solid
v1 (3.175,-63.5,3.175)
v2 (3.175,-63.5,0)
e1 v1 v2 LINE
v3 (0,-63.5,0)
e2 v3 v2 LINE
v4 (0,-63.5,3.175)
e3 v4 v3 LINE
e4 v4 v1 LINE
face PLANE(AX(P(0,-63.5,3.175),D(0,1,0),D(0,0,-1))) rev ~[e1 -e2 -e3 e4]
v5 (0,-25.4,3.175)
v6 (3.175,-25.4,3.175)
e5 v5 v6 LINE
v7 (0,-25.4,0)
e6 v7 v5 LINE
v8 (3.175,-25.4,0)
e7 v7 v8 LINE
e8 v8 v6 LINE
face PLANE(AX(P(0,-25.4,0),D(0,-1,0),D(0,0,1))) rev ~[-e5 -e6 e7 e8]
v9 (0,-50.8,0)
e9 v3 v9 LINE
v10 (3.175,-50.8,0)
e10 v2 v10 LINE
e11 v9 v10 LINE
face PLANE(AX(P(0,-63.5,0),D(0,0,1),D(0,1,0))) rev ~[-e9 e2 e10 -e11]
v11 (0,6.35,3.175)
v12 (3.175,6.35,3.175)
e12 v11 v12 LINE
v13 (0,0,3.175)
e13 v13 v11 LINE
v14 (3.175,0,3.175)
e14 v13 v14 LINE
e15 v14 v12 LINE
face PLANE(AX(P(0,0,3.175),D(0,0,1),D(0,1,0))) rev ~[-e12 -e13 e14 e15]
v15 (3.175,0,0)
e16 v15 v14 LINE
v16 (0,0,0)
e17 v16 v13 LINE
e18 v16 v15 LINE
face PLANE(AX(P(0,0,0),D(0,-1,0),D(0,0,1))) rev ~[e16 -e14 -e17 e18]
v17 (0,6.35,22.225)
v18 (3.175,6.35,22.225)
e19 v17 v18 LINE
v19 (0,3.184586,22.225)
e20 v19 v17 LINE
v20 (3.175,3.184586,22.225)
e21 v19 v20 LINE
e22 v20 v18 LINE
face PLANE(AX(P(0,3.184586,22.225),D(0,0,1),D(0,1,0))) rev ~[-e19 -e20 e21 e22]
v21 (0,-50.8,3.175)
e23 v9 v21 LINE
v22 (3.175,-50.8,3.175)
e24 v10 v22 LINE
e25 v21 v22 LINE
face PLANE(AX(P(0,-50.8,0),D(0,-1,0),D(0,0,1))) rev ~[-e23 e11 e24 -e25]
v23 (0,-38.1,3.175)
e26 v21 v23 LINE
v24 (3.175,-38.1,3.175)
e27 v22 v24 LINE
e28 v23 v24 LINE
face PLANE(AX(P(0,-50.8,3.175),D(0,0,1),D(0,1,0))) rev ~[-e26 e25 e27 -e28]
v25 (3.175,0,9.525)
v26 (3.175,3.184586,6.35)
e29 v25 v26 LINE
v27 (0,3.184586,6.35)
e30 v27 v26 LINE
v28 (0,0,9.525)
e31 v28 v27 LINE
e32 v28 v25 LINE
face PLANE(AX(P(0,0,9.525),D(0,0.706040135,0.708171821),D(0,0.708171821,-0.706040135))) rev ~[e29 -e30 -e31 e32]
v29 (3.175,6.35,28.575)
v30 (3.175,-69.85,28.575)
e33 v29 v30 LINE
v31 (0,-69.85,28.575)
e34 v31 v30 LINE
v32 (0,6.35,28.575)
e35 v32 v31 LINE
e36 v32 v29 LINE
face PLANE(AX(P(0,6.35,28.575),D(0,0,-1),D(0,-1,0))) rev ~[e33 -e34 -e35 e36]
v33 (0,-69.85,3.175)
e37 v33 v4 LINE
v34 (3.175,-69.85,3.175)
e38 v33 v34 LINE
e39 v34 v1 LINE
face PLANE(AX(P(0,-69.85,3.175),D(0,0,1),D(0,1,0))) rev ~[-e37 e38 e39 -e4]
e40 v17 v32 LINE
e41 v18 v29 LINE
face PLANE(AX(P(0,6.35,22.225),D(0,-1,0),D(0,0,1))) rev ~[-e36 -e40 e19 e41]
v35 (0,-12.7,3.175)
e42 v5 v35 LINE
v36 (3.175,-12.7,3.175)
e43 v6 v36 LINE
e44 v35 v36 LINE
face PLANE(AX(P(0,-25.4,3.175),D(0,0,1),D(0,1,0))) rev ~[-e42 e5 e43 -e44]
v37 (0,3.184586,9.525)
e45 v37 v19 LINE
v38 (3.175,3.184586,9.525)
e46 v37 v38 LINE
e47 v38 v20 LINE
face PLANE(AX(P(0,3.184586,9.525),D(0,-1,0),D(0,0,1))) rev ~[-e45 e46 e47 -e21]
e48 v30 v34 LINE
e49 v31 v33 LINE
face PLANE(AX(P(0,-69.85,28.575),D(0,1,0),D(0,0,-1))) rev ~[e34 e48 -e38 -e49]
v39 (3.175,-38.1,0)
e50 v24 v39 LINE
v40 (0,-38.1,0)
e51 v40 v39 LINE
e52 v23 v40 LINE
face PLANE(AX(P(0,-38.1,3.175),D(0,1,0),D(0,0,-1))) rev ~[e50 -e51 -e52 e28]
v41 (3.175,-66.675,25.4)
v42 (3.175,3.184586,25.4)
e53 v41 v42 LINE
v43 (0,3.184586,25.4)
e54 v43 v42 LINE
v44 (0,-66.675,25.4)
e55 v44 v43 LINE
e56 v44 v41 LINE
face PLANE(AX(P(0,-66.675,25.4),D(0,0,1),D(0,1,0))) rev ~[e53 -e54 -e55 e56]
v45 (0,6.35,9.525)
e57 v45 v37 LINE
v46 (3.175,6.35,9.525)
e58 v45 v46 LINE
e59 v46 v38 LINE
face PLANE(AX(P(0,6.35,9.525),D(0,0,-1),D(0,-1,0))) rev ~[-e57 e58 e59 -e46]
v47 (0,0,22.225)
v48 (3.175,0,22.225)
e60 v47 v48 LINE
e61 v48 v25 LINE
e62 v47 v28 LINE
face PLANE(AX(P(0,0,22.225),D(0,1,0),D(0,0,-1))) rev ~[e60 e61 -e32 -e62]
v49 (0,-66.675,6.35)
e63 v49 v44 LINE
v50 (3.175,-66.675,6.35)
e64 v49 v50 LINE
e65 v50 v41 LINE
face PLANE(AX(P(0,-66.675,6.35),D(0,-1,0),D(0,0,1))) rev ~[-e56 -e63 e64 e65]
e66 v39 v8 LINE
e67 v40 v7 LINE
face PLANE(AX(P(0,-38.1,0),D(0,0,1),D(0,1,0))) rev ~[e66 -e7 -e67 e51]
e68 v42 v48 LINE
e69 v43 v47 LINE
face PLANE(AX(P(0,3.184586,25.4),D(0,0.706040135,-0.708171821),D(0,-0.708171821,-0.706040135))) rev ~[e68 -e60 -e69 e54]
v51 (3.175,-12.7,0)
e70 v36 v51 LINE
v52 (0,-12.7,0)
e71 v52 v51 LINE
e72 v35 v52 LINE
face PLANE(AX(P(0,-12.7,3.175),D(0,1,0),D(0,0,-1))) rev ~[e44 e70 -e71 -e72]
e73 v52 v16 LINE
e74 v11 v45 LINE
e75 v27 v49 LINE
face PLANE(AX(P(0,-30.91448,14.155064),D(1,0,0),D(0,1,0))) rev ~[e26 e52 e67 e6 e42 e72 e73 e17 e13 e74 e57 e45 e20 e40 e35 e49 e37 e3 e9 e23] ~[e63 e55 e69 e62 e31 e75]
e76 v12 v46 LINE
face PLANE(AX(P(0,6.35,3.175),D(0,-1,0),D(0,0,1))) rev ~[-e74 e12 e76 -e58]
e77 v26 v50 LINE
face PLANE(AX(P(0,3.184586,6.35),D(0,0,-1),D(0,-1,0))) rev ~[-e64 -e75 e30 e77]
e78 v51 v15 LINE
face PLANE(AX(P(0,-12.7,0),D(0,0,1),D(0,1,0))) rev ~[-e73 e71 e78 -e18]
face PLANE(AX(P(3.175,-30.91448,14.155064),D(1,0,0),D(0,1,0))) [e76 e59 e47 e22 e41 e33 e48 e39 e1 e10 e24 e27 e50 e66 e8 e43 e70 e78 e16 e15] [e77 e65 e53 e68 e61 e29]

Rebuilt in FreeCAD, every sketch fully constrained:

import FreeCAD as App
import Part
import Sketcher
Q = App.Units.Quantity

doc = App.newDocument("Part")
body = doc.addObject("PartDesign::Body", "Body")

# Sketch on YZ plane
sketch1 = doc.addObject("Sketcher::SketchObject", "Sketch")
body.addObject(sketch1)
sketch1.AttachmentSupport = (doc.YZ_Plane, [""])
sketch1.MapMode = "FlatFace"
sketch1.addGeometry([
    Part.LineSegment(App.Vector(-12.7, 0, 0), App.Vector(0, 0, 0)),  # 0
    Part.LineSegment(App.Vector(0, 0, 0), App.Vector(0, 3.175, 0)),  # 1
    Part.LineSegment(App.Vector(0, 3.175, 0), App.Vector(6.35, 3.175, 0)),  # 2
    Part.LineSegment(App.Vector(6.35, 3.175, 0), App.Vector(6.35, 9.525, 0)),  # 3
    Part.LineSegment(App.Vector(6.35, 9.525, 0), App.Vector(3.184586, 9.525, 0)),  # 4
    Part.LineSegment(App.Vector(3.184586, 9.525, 0), App.Vector(3.184586, 22.225, 0)),  # 5
    Part.LineSegment(App.Vector(3.184586, 22.225, 0), App.Vector(6.35, 22.225, 0)),  # 6
    Part.LineSegment(App.Vector(6.35, 22.225, 0), App.Vector(6.35, 28.575, 0)),  # 7
    Part.LineSegment(App.Vector(6.35, 28.575, 0), App.Vector(-69.85, 28.575, 0)),  # 8
    Part.LineSegment(App.Vector(-69.85, 28.575, 0), App.Vector(-69.85, 3.175, 0)),  # 9
    Part.LineSegment(App.Vector(-69.85, 3.175, 0), App.Vector(-63.5, 3.175, 0)),  # 10
    Part.LineSegment(App.Vector(-63.5, 3.175, 0), App.Vector(-63.5, 0, 0)),  # 11
    Part.LineSegment(App.Vector(-63.5, 0, 0), App.Vector(-50.8, 0, 0)),  # 12
    Part.LineSegment(App.Vector(-50.8, 0, 0), App.Vector(-50.8, 3.175, 0)),  # 13
    Part.LineSegment(App.Vector(-50.8, 3.175, 0), App.Vector(-38.1, 3.175, 0)),  # 14
    Part.LineSegment(App.Vector(-38.1, 3.175, 0), App.Vector(-38.1, 0, 0)),  # 15
    Part.LineSegment(App.Vector(-38.1, 0, 0), App.Vector(-25.4, 0, 0)),  # 16
    Part.LineSegment(App.Vector(-25.4, 0, 0), App.Vector(-25.4, 3.175, 0)),  # 17
    Part.LineSegment(App.Vector(-25.4, 3.175, 0), App.Vector(-12.7, 3.175, 0)),  # 18
    Part.LineSegment(App.Vector(-12.7, 3.175, 0), App.Vector(-12.7, 0, 0)),  # 19
    Part.LineSegment(App.Vector(3.184586, 6.35, 0), App.Vector(-66.675, 6.35, 0)),  # 20
    Part.LineSegment(App.Vector(-66.675, 6.35, 0), App.Vector(-66.675, 25.4, 0)),  # 21
    Part.LineSegment(App.Vector(-66.675, 25.4, 0), App.Vector(3.184586, 25.4, 0)),  # 22
    Part.LineSegment(App.Vector(3.184586, 25.4, 0), App.Vector(0, 22.225, 0)),  # 23
    Part.LineSegment(App.Vector(0, 22.225, 0), App.Vector(0, 9.525, 0)),  # 24
    Part.LineSegment(App.Vector(0, 9.525, 0), App.Vector(3.184586, 6.35, 0)),  # 25
], False)
sketch1.addConstraint([
    Sketcher.Constraint("Coincident", 0, 2, 1, 1),
    Sketcher.Constraint("Coincident", 1, 2, 2, 1),
    Sketcher.Constraint("Coincident", 2, 2, 3, 1),
    Sketcher.Constraint("Coincident", 3, 2, 4, 1),
    Sketcher.Constraint("Coincident", 4, 2, 5, 1),
    Sketcher.Constraint("Coincident", 5, 2, 6, 1),
    Sketcher.Constraint("Coincident", 6, 2, 7, 1),
    Sketcher.Constraint("Coincident", 7, 2, 8, 1),
    Sketcher.Constraint("Coincident", 8, 2, 9, 1),
    Sketcher.Constraint("Coincident", 9, 2, 10, 1),
    Sketcher.Constraint("Coincident", 10, 2, 11, 1),
    Sketcher.Constraint("Coincident", 11, 2, 12, 1),
    Sketcher.Constraint("Coincident", 12, 2, 13, 1),
    Sketcher.Constraint("Coincident", 13, 2, 14, 1),
    Sketcher.Constraint("Coincident", 14, 2, 15, 1),
    Sketcher.Constraint("Coincident", 15, 2, 16, 1),
    Sketcher.Constraint("Coincident", 16, 2, 17, 1),
    Sketcher.Constraint("Coincident", 17, 2, 18, 1),
    Sketcher.Constraint("Coincident", 18, 2, 19, 1),
    Sketcher.Constraint("Coincident", 19, 2, 0, 1),
    Sketcher.Constraint("Coincident", 20, 2, 21, 1),
    Sketcher.Constraint("Coincident", 21, 2, 22, 1),
    Sketcher.Constraint("Coincident", 22, 2, 23, 1),
    Sketcher.Constraint("Coincident", 23, 2, 24, 1),
    Sketcher.Constraint("Coincident", 24, 2, 25, 1),
    Sketcher.Constraint("Coincident", 25, 2, 20, 1),
    Sketcher.Constraint("Horizontal", 0),
    Sketcher.Constraint("Vertical", 1),
    Sketcher.Constraint("Horizontal", 2),
    Sketcher.Constraint("Vertical", 3),
    Sketcher.Constraint("Horizontal", 4),
    Sketcher.Constraint("Vertical", 5),
    Sketcher.Constraint("Horizontal", 6),
    Sketcher.Constraint("Vertical", 7),
    Sketcher.Constraint("Horizontal", 8),
    Sketcher.Constraint("Vertical", 9),
    Sketcher.Constraint("Horizontal", 10),
    Sketcher.Constraint("Vertical", 11),
    Sketcher.Constraint("Horizontal", 12),
    Sketcher.Constraint("Vertical", 13),
    Sketcher.Constraint("Horizontal", 14),
    Sketcher.Constraint("Vertical", 15),
    Sketcher.Constraint("Horizontal", 16),
    Sketcher.Constraint("Vertical", 17),
    Sketcher.Constraint("Horizontal", 18),
    Sketcher.Constraint("Vertical", 19),
    Sketcher.Constraint("Horizontal", 20),
    Sketcher.Constraint("Vertical", 21),
    Sketcher.Constraint("Horizontal", 22),
    Sketcher.Constraint("Vertical", 24),
    Sketcher.Constraint("Coincident", 0, 2, -1, 1),
    Sketcher.Constraint("PointOnObject", 11, 2, -1),
    Sketcher.Constraint("PointOnObject", 15, 2, -1),
    Sketcher.Constraint("PointOnObject", 23, 2, -2),
    Sketcher.Constraint("Horizontal", 2, 2, 9, 2),
    Sketcher.Constraint("Horizontal", 10, 2, 13, 2),
    Sketcher.Constraint("Horizontal", 14, 2, 17, 2),
    Sketcher.Constraint("Horizontal", 6, 2, 23, 2),
    Sketcher.Constraint("Horizontal", 4, 2, 24, 2),
    Sketcher.Constraint("Vertical", 3, 2, 6, 2),
    Sketcher.Constraint("Vertical", 5, 2, 22, 2),
    Sketcher.Constraint("Vertical", 22, 2, 25, 2),
    Sketcher.Constraint("Equal", 2, 10),
    Sketcher.Constraint("Equal", 0, 12),
    Sketcher.Constraint("Equal", 12, 14),
    Sketcher.Constraint("Equal", 14, 16),
    Sketcher.Constraint("Equal", 16, 18),
    Sketcher.Constraint("Equal", 10, 3),
    Sketcher.Constraint("Equal", 18, 5),
    Sketcher.Constraint("Equal", 3, 7),
    Sketcher.Constraint("Equal", 23, 25),
    Sketcher.Constraint("DistanceX", 8, 2, 8, 1, Q("3 in")),
    Sketcher.Constraint("DistanceY", 9, 2, 9, 1, Q("1 in")),
    Sketcher.Constraint("DistanceY", -1, 1, 21, 2, Q("1 in")),
    Sketcher.Constraint("DistanceY", 21, 1, 21, 2, Q("0.75 in")),
    Sketcher.Constraint("DistanceX", 20, 2, -1, 1, Q("2.625 in")),
    Sketcher.Constraint("Distance", 23, Q("4.496911 mm")),
])
pad1 = doc.addObject("PartDesign::Pad", "Pad")
body.addObject(pad1)
pad1.Profile = sketch1
pad1.Length = Q("0.125 in")

doc.recompute()
